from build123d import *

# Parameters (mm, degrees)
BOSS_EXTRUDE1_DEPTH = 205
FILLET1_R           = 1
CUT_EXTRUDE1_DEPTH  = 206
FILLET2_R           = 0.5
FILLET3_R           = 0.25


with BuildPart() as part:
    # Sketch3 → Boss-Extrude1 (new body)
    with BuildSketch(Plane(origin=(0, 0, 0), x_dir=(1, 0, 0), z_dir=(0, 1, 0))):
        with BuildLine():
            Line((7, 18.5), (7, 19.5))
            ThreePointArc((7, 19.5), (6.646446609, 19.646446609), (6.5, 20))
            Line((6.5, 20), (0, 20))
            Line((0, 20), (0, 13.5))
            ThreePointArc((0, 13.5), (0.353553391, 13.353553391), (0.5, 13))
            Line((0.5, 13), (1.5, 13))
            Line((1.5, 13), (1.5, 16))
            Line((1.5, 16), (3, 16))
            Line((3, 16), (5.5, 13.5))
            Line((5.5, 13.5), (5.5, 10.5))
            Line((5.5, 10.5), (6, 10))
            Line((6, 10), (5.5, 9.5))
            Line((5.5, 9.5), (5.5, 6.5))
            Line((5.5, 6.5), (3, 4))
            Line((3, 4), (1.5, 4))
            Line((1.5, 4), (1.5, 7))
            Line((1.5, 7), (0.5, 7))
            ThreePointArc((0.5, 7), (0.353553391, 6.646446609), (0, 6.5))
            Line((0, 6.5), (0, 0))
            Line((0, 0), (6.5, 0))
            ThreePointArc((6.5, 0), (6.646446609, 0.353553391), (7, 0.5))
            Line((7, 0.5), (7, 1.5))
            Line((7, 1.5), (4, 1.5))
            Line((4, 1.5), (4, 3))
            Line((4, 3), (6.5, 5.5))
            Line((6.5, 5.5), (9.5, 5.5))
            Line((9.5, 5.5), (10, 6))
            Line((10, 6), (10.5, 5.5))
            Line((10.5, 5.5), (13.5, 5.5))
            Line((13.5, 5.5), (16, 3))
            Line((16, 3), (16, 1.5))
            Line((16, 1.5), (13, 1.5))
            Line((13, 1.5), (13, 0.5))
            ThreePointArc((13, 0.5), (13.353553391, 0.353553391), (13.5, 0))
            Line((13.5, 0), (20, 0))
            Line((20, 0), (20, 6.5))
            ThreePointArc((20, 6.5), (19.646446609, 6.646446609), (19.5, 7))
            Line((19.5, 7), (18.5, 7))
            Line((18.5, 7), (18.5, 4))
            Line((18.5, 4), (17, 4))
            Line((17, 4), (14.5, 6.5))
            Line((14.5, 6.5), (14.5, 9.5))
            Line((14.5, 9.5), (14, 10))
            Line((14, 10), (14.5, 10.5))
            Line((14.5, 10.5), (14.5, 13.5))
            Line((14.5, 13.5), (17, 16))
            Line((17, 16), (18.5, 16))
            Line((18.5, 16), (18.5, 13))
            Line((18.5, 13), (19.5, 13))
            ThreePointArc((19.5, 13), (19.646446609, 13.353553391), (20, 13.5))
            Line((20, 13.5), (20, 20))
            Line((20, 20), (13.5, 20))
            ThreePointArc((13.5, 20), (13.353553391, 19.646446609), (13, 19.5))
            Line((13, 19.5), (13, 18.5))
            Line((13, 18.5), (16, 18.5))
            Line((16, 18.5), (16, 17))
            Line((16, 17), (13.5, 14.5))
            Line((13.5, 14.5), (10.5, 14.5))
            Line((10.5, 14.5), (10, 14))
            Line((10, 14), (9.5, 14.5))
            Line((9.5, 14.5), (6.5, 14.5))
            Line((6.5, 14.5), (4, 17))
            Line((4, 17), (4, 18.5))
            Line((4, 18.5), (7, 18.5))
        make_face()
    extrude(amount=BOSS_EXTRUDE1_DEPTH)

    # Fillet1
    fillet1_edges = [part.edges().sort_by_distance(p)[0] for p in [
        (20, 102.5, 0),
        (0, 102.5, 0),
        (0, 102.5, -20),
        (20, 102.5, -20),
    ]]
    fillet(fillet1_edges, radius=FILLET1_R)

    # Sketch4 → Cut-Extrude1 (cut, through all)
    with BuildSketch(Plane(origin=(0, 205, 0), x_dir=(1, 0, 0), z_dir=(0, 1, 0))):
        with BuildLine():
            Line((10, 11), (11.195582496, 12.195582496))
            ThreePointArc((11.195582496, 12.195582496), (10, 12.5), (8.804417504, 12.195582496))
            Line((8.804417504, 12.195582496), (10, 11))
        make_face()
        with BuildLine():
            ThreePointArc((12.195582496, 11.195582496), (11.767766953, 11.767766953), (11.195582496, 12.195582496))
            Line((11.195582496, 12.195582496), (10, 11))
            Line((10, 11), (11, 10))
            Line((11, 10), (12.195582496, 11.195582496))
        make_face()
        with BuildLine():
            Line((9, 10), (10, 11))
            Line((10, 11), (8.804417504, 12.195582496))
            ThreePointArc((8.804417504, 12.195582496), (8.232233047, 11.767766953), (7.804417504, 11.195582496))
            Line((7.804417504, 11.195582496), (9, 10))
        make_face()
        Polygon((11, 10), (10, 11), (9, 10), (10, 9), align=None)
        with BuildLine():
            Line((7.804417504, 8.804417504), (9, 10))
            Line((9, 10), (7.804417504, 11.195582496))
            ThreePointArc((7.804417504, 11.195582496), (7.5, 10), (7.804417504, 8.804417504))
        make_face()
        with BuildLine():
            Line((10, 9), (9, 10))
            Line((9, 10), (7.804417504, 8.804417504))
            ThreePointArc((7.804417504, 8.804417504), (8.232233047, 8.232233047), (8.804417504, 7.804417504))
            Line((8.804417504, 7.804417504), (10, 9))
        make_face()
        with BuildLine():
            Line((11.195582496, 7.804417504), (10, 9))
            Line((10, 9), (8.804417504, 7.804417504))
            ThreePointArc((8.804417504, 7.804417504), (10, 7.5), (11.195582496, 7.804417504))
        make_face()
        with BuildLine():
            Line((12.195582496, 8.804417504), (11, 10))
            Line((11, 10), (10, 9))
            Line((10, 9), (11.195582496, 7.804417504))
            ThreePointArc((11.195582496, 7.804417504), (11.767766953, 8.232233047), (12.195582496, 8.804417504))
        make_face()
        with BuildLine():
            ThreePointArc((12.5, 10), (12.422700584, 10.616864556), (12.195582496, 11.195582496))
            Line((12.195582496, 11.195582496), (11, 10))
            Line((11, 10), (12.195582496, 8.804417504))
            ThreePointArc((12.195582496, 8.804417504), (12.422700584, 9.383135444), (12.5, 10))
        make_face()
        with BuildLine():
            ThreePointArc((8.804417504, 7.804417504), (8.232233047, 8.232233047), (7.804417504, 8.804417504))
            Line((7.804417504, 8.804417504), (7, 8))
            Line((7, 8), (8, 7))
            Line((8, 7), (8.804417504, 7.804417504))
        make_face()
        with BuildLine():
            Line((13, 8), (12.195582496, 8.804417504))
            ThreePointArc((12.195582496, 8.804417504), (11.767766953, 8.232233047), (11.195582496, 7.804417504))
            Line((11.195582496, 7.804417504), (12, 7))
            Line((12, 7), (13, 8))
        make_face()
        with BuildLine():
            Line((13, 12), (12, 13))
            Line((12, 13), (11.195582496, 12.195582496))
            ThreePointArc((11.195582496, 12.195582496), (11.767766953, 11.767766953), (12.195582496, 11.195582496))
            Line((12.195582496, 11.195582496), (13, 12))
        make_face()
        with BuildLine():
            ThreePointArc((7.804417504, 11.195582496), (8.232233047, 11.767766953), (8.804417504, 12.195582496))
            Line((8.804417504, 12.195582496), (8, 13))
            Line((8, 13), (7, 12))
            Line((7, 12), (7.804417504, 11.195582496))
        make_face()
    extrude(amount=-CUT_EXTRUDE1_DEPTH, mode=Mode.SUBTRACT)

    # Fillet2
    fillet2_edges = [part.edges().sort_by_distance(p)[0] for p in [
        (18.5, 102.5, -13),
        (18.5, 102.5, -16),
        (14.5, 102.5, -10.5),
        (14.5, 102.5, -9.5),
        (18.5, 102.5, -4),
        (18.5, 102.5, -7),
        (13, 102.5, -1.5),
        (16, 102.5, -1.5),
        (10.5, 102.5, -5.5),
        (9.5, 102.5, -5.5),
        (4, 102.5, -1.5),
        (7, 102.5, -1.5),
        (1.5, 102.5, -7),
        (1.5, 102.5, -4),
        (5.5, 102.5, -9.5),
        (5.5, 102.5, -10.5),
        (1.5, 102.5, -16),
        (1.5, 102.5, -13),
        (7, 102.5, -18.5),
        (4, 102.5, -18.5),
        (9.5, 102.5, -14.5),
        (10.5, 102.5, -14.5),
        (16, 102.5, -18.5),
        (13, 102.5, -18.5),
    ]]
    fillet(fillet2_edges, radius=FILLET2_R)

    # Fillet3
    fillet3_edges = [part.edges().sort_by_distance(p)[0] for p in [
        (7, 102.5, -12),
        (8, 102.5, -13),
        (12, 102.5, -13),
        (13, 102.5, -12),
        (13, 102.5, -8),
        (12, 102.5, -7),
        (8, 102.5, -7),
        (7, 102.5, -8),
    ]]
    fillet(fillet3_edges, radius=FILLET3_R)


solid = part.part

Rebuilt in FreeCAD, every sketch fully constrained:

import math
import FreeCAD as App
import Part
import Sketcher
from FreeCAD import Vector


def edges_at(feature, points):
    """Names of the edges that pass closest to the given points."""
    edges = feature.Shape.Edges
    near = lambda p: min(range(len(edges)), key=lambda i: edges[i].distToShape(Part.Vertex(*p))[0])
    return sorted({f"Edge{near(p) + 1}" for p in points})

doc = App.newDocument("Part")
body = doc.addObject("PartDesign::Body", "Body")

sketch1 = body.newObject("Sketcher::SketchObject", "Sketch")
sketch1.AttachmentSupport = (doc.getObject("XZ_Plane"), [""])
sketch1.MapMode = "FlatFace"
sketch1.addGeometry(Part.LineSegment(Vector(7, -18.5, 0), Vector(7, -19.5, 0)), False)
sketch1.addGeometry(Part.ArcOfCircle(Part.Circle(Vector(7, -20, 0), Vector(0, 0, 1), 0.5), math.radians(90), math.radians(180)), False)
sketch1.addGeometry(Part.LineSegment(Vector(6.5, -20, 0), Vector(0, -20, 0)), False)
sketch1.addGeometry(Part.LineSegment(Vector(0, -20, 0), Vector(0, -13.5, 0)), False)
sketch1.addGeometry(Part.ArcOfCircle(Part.Circle(Vector(0, -13, 0), Vector(0, 0, 1), 0.5), math.radians(-90), math.radians(0)), False)
sketch1.addGeometry(Part.LineSegment(Vector(0.5, -13, 0), Vector(1.5, -13, 0)), False)
sketch1.addGeometry(Part.LineSegment(Vector(1.5, -13, 0), Vector(1.5, -16, 0)), False)
sketch1.addGeometry(Part.LineSegment(Vector(1.5, -16, 0), Vector(3, -16, 0)), False)
sketch1.addGeometry(Part.LineSegment(Vector(3, -16, 0), Vector(5.5, -13.5, 0)), False)
sketch1.addGeometry(Part.LineSegment(Vector(5.5, -13.5, 0), Vector(5.5, -10.5, 0)), False)
sketch1.addGeometry(Part.LineSegment(Vector(5.5, -10.5, 0), Vector(6, -10, 0)), False)
sketch1.addGeometry(Part.LineSegment(Vector(6, -10, 0), Vector(5.5, -9.5, 0)), False)
sketch1.addGeometry(Part.LineSegment(Vector(5.5, -9.5, 0), Vector(5.5, -6.5, 0)), False)
sketch1.addGeometry(Part.LineSegment(Vector(5.5, -6.5, 0), Vector(3, -4, 0)), False)
sketch1.addGeometry(Part.LineSegment(Vector(3, -4, 0), Vector(1.5, -4, 0)), False)
sketch1.addGeometry(Part.LineSegment(Vector(1.5, -4, 0), Vector(1.5, -7, 0)), False)
sketch1.addGeometry(Part.LineSegment(Vector(1.5, -7, 0), Vector(0.5, -7, 0)), False)
sketch1.addGeometry(Part.ArcOfCircle(Part.Circle(Vector(0, -7, 0), Vector(0, 0, 1), 0.5), math.radians(0), math.radians(90)), False)
sketch1.addGeometry(Part.LineSegment(Vector(0, -6.5, 0), Vector(0, 0, 0)), False)
sketch1.addGeometry(Part.LineSegment(Vector(0, 0, 0), Vector(6.5, 0, 0)), False)
sketch1.addGeometry(Part.ArcOfCircle(Part.Circle(Vector(7, 0, 0), Vector(0, 0, 1), 0.5), math.radians(180), math.radians(270)), False)
sketch1.addGeometry(Part.LineSegment(Vector(7, -0.5, 0), Vector(7, -1.5, 0)), False)
sketch1.addGeometry(Part.LineSegment(Vector(7, -1.5, 0), Vector(4, -1.5, 0)), False)
sketch1.addGeometry(Part.LineSegment(Vector(4, -1.5, 0), Vector(4, -3, 0)), False)
sketch1.addGeometry(Part.LineSegment(Vector(4, -3, 0), Vector(6.5, -5.5, 0)), False)
sketch1.addGeometry(Part.LineSegment(Vector(6.5, -5.5, 0), Vector(9.5, -5.5, 0)), False)
sketch1.addGeometry(Part.LineSegment(Vector(9.5, -5.5, 0), Vector(10, -6, 0)), False)
sketch1.addGeometry(Part.LineSegment(Vector(10, -6, 0), Vector(10.5, -5.5, 0)), False)
sketch1.addGeometry(Part.LineSegment(Vector(10.5, -5.5, 0), Vector(13.5, -5.5, 0)), False)
sketch1.addGeometry(Part.LineSegment(Vector(13.5, -5.5, 0), Vector(16, -3, 0)), False)
sketch1.addGeometry(Part.LineSegment(Vector(16, -3, 0), Vector(16, -1.5, 0)), False)
sketch1.addGeometry(Part.LineSegment(Vector(16, -1.5, 0), Vector(13, -1.5, 0)), False)
sketch1.addGeometry(Part.LineSegment(Vector(13, -1.5, 0), Vector(13, -0.5, 0)), False)
sketch1.addGeometry(Part.ArcOfCircle(Part.Circle(Vector(13, 0, 0), Vector(0, 0, 1), 0.5), math.radians(-90), math.radians(0)), False)
sketch1.addGeometry(Part.LineSegment(Vector(13.5, 0, 0), Vector(20, 0, 0)), False)
sketch1.addGeometry(Part.LineSegment(Vector(20, 0, 0), Vector(20, -6.5, 0)), False)
sketch1.addGeometry(Part.ArcOfCircle(Part.Circle(Vector(20, -7, 0), Vector(0, 0, 1), 0.5), math.radians(90), math.radians(180)), False)
sketch1.addGeometry(Part.LineSegment(Vector(19.5, -7, 0), Vector(18.5, -7, 0)), False)
sketch1.addGeometry(Part.LineSegment(Vector(18.5, -7, 0), Vector(18.5, -4, 0)), False)
sketch1.addGeometry(Part.LineSegment(Vector(18.5, -4, 0), Vector(17, -4, 0)), False)
sketch1.addGeometry(Part.LineSegment(Vector(17, -4, 0), Vector(14.5, -6.5, 0)), False)
sketch1.addGeometry(Part.LineSegment(Vector(14.5, -6.5, 0), Vector(14.5, -9.5, 0)), False)
sketch1.addGeometry(Part.LineSegment(Vector(14.5, -9.5, 0), Vector(14, -10, 0)), False)
sketch1.addGeometry(Part.LineSegment(Vector(14, -10, 0), Vector(14.5, -10.5, 0)), False)
sketch1.addGeometry(Part.LineSegment(Vector(14.5, -10.5, 0), Vector(14.5, -13.5, 0)), False)
sketch1.addGeometry(Part.LineSegment(Vector(14.5, -13.5, 0), Vector(17, -16, 0)), False)
sketch1.addGeometry(Part.LineSegment(Vector(17, -16, 0), Vector(18.5, -16, 0)), False)
sketch1.addGeometry(Part.LineSegment(Vector(18.5, -16, 0), Vector(18.5, -13, 0)), False)
sketch1.addGeometry(Part.LineSegment(Vector(18.5, -13, 0), Vector(19.5, -13, 0)), False)
sketch1.addGeometry(Part.ArcOfCircle(Part.Circle(Vector(20, -13, 0), Vector(0, 0, 1), 0.5), math.radians(180), math.radians(270)), False)
sketch1.addGeometry(Part.LineSegment(Vector(20, -13.5, 0), Vector(20, -20, 0)), False)
sketch1.addGeometry(Part.LineSegment(Vector(20, -20, 0), Vector(13.5, -20, 0)), False)
sketch1.addGeometry(Part.ArcOfCircle(Part.Circle(Vector(13, -20, 0), Vector(0, 0, 1), 0.5), math.radians(0), math.radians(90)), False)
sketch1.addGeometry(Part.LineSegment(Vector(13, -19.5, 0), Vector(13, -18.5, 0)), False)
sketch1.addGeometry(Part.LineSegment(Vector(13, -18.5, 0), Vector(16, -18.5, 0)), False)
sketch1.addGeometry(Part.LineSegment(Vector(16, -18.5, 0), Vector(16, -17, 0)), False)
sketch1.addGeometry(Part.LineSegment(Vector(16, -17, 0), Vector(13.5, -14.5, 0)), False)
sketch1.addGeometry(Part.LineSegment(Vector(13.5, -14.5, 0), Vector(10.5, -14.5, 0)), False)
sketch1.addGeometry(Part.LineSegment(Vector(10.5, -14.5, 0), Vector(10, -14, 0)), False)
sketch1.addGeometry(Part.LineSegment(Vector(10, -14, 0), Vector(9.5, -14.5, 0)), False)
sketch1.addGeometry(Part.LineSegment(Vector(9.5, -14.5, 0), Vector(6.5, -14.5, 0)), False)
sketch1.addGeometry(Part.LineSegment(Vector(6.5, -14.5, 0), Vector(4, -17, 0)), False)
sketch1.addGeometry(Part.LineSegment(Vector(4, -17, 0), Vector(4, -18.5, 0)), False)
sketch1.addGeometry(Part.LineSegment(Vector(4, -18.5, 0), Vector(7, -18.5, 0)), False)
sketch1.addConstraint(Sketcher.Constraint("Coincident", 0, 2, 1, 1))
sketch1.addConstraint(Sketcher.Constraint("Coincident", 1, 2, 2, 1))
sketch1.addConstraint(Sketcher.Constraint("Coincident", 2, 2, 3, 1))
sketch1.addConstraint(Sketcher.Constraint("Coincident", 3, 2, 4, 1))
sketch1.addConstraint(Sketcher.Constraint("Coincident", 4, 2, 5, 1))
sketch1.addConstraint(Sketcher.Constraint("Coincident", 5, 2, 6, 1))
sketch1.addConstraint(Sketcher.Constraint("Coincident", 6, 2, 7, 1))
sketch1.addConstraint(Sketcher.Constraint("Coincident", 7, 2, 8, 1))
sketch1.addConstraint(Sketcher.Constraint("Coincident", 8, 2, 9, 1))
sketch1.addConstraint(Sketcher.Constraint("Coincident", 9, 2, 10, 1))
sketch1.addConstraint(Sketcher.Constraint("Coincident", 10, 2, 11, 1))
sketch1.addConstraint(Sketcher.Constraint("Coincident", 11, 2, 12, 1))
sketch1.addConstraint(Sketcher.Constraint("Coincident", 12, 2, 13, 1))
sketch1.addConstraint(Sketcher.Constraint("Coincident", 13, 2, 14, 1))
sketch1.addConstraint(Sketcher.Constraint("Coincident", 14, 2, 15, 1))
sketch1.addConstraint(Sketcher.Constraint("Coincident", 15, 2, 16, 1))
sketch1.addConstraint(Sketcher.Constraint("Coincident", 16, 2, 17, 1))
sketch1.addConstraint(Sketcher.Constraint("Coincident", 17, 2, 18, 1))
sketch1.addConstraint(Sketcher.Constraint("Coincident", 18, 2, 19, 1))
sketch1.addConstraint(Sketcher.Constraint("Coincident", 19, 2, 20, 1))
sketch1.addConstraint(Sketcher.Constraint("Coincident", 20, 2, 21, 1))
sketch1.addConstraint(Sketcher.Constraint("Coincident", 21, 2, 22, 1))
sketch1.addConstraint(Sketcher.Constraint("Coincident", 22, 2, 23, 1))
sketch1.addConstraint(Sketcher.Constraint("Coincident", 23, 2, 24, 1))
sketch1.addConstraint(Sketcher.Constraint("Coincident", 24, 2, 25, 1))
sketch1.addConstraint(Sketcher.Constraint("Coincident", 25, 2, 26, 1))
sketch1.addConstraint(Sketcher.Constraint("Coincident", 26, 2, 27, 1))
sketch1.addConstraint(Sketcher.Constraint("Coincident", 27, 2, 28, 1))
sketch1.addConstraint(Sketcher.Constraint("Coincident", 28, 2, 29, 1))
sketch1.addConstraint(Sketcher.Constraint("Coincident", 29, 2, 30, 1))
sketch1.addConstraint(Sketcher.Constraint("Coincident", 30, 2, 31, 1))
sketch1.addConstraint(Sketcher.Constraint("Coincident", 31, 2, 32, 1))
sketch1.addConstraint(Sketcher.Constraint("Coincident", 32, 2, 33, 1))
sketch1.addConstraint(Sketcher.Constraint("Coincident", 33, 2, 34, 1))
sketch1.addConstraint(Sketcher.Constraint("Coincident", 34, 2, 35, 1))
sketch1.addConstraint(Sketcher.Constraint("Coincident", 35, 2, 36, 1))
sketch1.addConstraint(Sketcher.Constraint("Coincident", 36, 2, 37, 1))
sketch1.addConstraint(Sketcher.Constraint("Coincident", 37, 2, 38, 1))
sketch1.addConstraint(Sketcher.Constraint("Coincident", 38, 2, 39, 1))
sketch1.addConstraint(Sketcher.Constraint("Coincident", 39, 2, 40, 1))
sketch1.addConstraint(Sketcher.Constraint("Coincident", 40, 2, 41, 1))
sketch1.addConstraint(Sketcher.Constraint("Coincident", 41, 2, 42, 1))
sketch1.addConstraint(Sketcher.Constraint("Coincident", 42, 2, 43, 1))
sketch1.addConstraint(Sketcher.Constraint("Coincident", 43, 2, 44, 1))
sketch1.addConstraint(Sketcher.Constraint("Coincident", 44, 2, 45, 1))
sketch1.addConstraint(Sketcher.Constraint("Coincident", 45, 2, 46, 1))
sketch1.addConstraint(Sketcher.Constraint("Coincident", 46, 2, 47, 1))
sketch1.addConstraint(Sketcher.Constraint("Coincident", 47, 2, 48, 1))
sketch1.addConstraint(Sketcher.Constraint("Coincident", 48, 2, 49, 1))
sketch1.addConstraint(Sketcher.Constraint("Coincident", 49, 2, 50, 1))
sketch1.addConstraint(Sketcher.Constraint("Coincident", 50, 2, 51, 1))
sketch1.addConstraint(Sketcher.Constraint("Coincident", 51, 2, 52, 1))
sketch1.addConstraint(Sketcher.Constraint("Coincident", 52, 2, 53, 1))
sketch1.addConstraint(Sketcher.Constraint("Coincident", 53, 2, 54, 1))
sketch1.addConstraint(Sketcher.Constraint("Coincident", 54, 2, 55, 1))
sketch1.addConstraint(Sketcher.Constraint("Coincident", 55, 2, 56, 1))
sketch1.addConstraint(Sketcher.Constraint("Coincident", 56, 2, 57, 1))
sketch1.addConstraint(Sketcher.Constraint("Coincident", 57, 2, 58, 1))
sketch1.addConstraint(Sketcher.Constraint("Coincident", 58, 2, 59, 1))
sketch1.addConstraint(Sketcher.Constraint("Coincident", 59, 2, 60, 1))
sketch1.addConstraint(Sketcher.Constraint("Coincident", 60, 2, 61, 1))
sketch1.addConstraint(Sketcher.Constraint("Coincident", 61, 2, 62, 1))
sketch1.addConstraint(Sketcher.Constraint("Coincident", 62, 2, 63, 1))
sketch1.addConstraint(Sketcher.Constraint("Coincident", 63, 2, 0, 1))
sketch1.addConstraint(Sketcher.Constraint("Vertical", 0))
sketch1.addConstraint(Sketcher.Constraint("Horizontal", 2))
sketch1.addConstraint(Sketcher.Constraint("Vertical", 3))
sketch1.addConstraint(Sketcher.Constraint("Horizontal", 5))
sketch1.addConstraint(Sketcher.Constraint("Vertical", 6))
sketch1.addConstraint(Sketcher.Constraint("Horizontal", 7))
sketch1.addConstraint(Sketcher.Constraint("Vertical", 9))
sketch1.addConstraint(Sketcher.Constraint("Vertical", 12))
sketch1.addConstraint(Sketcher.Constraint("Horizontal", 14))
sketch1.addConstraint(Sketcher.Constraint("Vertical", 15))
sketch1.addConstraint(Sketcher.Constraint("Horizontal", 16))
sketch1.addConstraint(Sketcher.Constraint("Vertical", 18))
sketch1.addConstraint(Sketcher.Constraint("Horizontal", 19))
sketch1.addConstraint(Sketcher.Constraint("Vertical", 21))
sketch1.addConstraint(Sketcher.Constraint("Horizontal", 22))
sketch1.addConstraint(Sketcher.Constraint("Vertical", 23))
sketch1.addConstraint(Sketcher.Constraint("Horizontal", 25))
sketch1.addConstraint(Sketcher.Constraint("Horizontal", 28))
sketch1.addConstraint(Sketcher.Constraint("Vertical", 30))
sketch1.addConstraint(Sketcher.Constraint("Horizontal", 31))
sketch1.addConstraint(Sketcher.Constraint("Vertical", 32))
sketch1.addConstraint(Sketcher.Constraint("Horizontal", 34))
sketch1.addConstraint(Sketcher.Constraint("Vertical", 35))
sketch1.addConstraint(Sketcher.Constraint("Horizontal", 37))
sketch1.addConstraint(Sketcher.Constraint("Vertical", 38))
sketch1.addConstraint(Sketcher.Constraint("Horizontal", 39))
sketch1.addConstraint(Sketcher.Constraint("Vertical", 41))
sketch1.addConstraint(Sketcher.Constraint("Vertical", 44))
sketch1.addConstraint(Sketcher.Constraint("Horizontal", 46))
sketch1.addConstraint(Sketcher.Constraint("Vertical", 47))
sketch1.addConstraint(Sketcher.Constraint("Horizontal", 48))
sketch1.addConstraint(Sketcher.Constraint("Vertical", 50))
sketch1.addConstraint(Sketcher.Constraint("Horizontal", 51))
sketch1.addConstraint(Sketcher.Constraint("Vertical", 53))
sketch1.addConstraint(Sketcher.Constraint("Horizontal", 54))
sketch1.addConstraint(Sketcher.Constraint("Vertical", 55))
sketch1.addConstraint(Sketcher.Constraint("Horizontal", 57))
sketch1.addConstraint(Sketcher.Constraint("Horizontal", 60))
sketch1.addConstraint(Sketcher.Constraint("Vertical", 62))
sketch1.addConstraint(Sketcher.Constraint("Horizontal", 63))
sketch1.addConstraint(Sketcher.Constraint("Coincident", 18, 2, -1, 1))
sketch1.addConstraint(Sketcher.Constraint("Equal", 1, 4))
sketch1.addConstraint(Sketcher.Constraint("Equal", 4, 17))
sketch1.addConstraint(Sketcher.Constraint("Equal", 17, 20))
sketch1.addConstraint(Sketcher.Constraint("Equal", 20, 33))
sketch1.addConstraint(Sketcher.Constraint("Equal", 33, 36))
sketch1.addConstraint(Sketcher.Constraint("Equal", 36, 49))
sketch1.addConstraint(Sketcher.Constraint("Equal", 49, 52))
sketch1.addConstraint(Sketcher.Constraint("PointOnObject", 4, 3, -2))
sketch1.addConstraint(Sketcher.Constraint("PointOnObject", 17, 3, -2))
sketch1.addConstraint(Sketcher.Constraint("PointOnObject", 20, 3, -1))
sketch1.addConstraint(Sketcher.Constraint("PointOnObject", 33, 3, -1))
sketch1.addConstraint(Sketcher.Constraint("PointOnObject", 2, 2, -2))
sketch1.addConstraint(Sketcher.Constraint("PointOnObject", 33, 2, -1))
sketch1.addConstraint(Sketcher.Constraint("Parallel", 8, 10))
sketch1.addConstraint(Sketcher.Constraint("Perpendicular", 10, 11))
sketch1.addConstraint(Sketcher.Constraint("Parallel", 11, 13))
sketch1.addConstraint(Sketcher.Constraint("Parallel", 13, 24))
sketch1.addConstraint(Sketcher.Constraint("Parallel", 24, 26))
sketch1.addConstraint(Sketcher.Constraint("Perpendicular", 26, 27))
sketch1.addConstraint(Sketcher.Constraint("Parallel", 27, 29))
sketch1.addConstraint(Sketcher.Constraint("Parallel", 29, 40))
sketch1.addConstraint(Sketcher.Constraint("Parallel", 40, 42))
sketch1.addConstraint(Sketcher.Constraint("Perpendicular", 42, 43))
sketch1.addConstraint(Sketcher.Constraint("Parallel", 43, 45))
sketch1.addConstraint(Sketcher.Constraint("Parallel", 45, 56))
sketch1.addConstraint(Sketcher.Constraint("Parallel", 56, 58))
sketch1.addConstraint(Sketcher.Constraint("Perpendicular", 58, 59))
sketch1.addConstraint(Sketcher.Constraint("Parallel", 59, 61))
sketch1.addConstraint(Sketcher.Constraint("Horizontal", 17, 3, 36, 3))
sketch1.addConstraint(Sketcher.Constraint("Horizontal", 4, 3, 49, 3))
sketch1.addConstraint(Sketcher.Constraint("Horizontal", 1, 3, 52, 3))
sketch1.addConstraint(Sketcher.Constraint("Horizontal", 52, 3, 1, 2))
sketch1.addConstraint(Sketcher.Constraint("Horizontal", 49, 3, 4, 2))
sketch1.addConstraint(Sketcher.Constraint("Horizontal", 3, 2, 8, 2))
sketch1.addConstraint(Sketcher.Constraint("Horizontal", 36, 3, 15, 2))
sketch1.addConstraint(Sketcher.Constraint("Horizontal", 12, 2, 17, 2))
sketch1.addConstraint(Sketcher.Constraint("Horizontal", 25, 2, 27, 2))
sketch1.addConstraint(Sketcher.Constraint("Horizontal", 23, 2, 29, 2))
sketch1.addConstraint(Sketcher.Constraint("Horizontal", 22, 2, 30, 2))
sketch1.addConstraint(Sketcher.Constraint("Horizontal", 16, 2, 36, 2))
sketch1.addConstraint(Sketcher.Constraint("Horizontal", 14, 2, 38, 2))
sketch1.addConstraint(Sketcher.Constraint("Horizontal", 35, 2, 40, 2))
sketch1.addConstraint(Sketcher.Constraint("Horizontal", 11, 2, 41, 2))
sketch1.addConstraint(Sketcher.Constraint("Horizontal", 10, 2, 42, 2))
sketch1.addConstraint(Sketcher.Constraint("Horizontal", 9, 2, 43, 2))
sketch1.addConstraint(Sketcher.Constraint("Horizontal", 8, 2, 44, 2))
sketch1.addConstraint(Sketcher.Constraint("Horizontal", 7, 2, 45, 2))
sketch1.addConstraint(Sketcher.Constraint("Horizontal", 5, 2, 47, 2))
sketch1.addConstraint(Sketcher.Constraint("Horizontal", 2, 2, 50, 2))
sketch1.addConstraint(Sketcher.Constraint("Horizontal", 57, 2, 59, 2))
sketch1.addConstraint(Sketcher.Constraint("Horizontal", 55, 2, 61, 2))
sketch1.addConstraint(Sketcher.Constraint("Horizontal", 54, 2, 62, 2))
sketch1.addConstraint(Sketcher.Constraint("Vertical", 1, 3, 20, 3))
sketch1.addConstraint(Sketcher.Constraint("Vertical", 36, 3, 49, 3))
sketch1.addConstraint(Sketcher.Constraint("Vertical", 33, 3, 52, 3))
sketch1.addConstraint(Sketcher.Constraint("Vertical", 20, 3, 0, 2))
sketch1.addConstraint(Sketcher.Constraint("Vertical", 9, 2, 11, 2))
sketch1.addConstraint(Sketcher.Constraint("Vertical", 7, 2, 13, 2))
sketch1.addConstraint(Sketcher.Constraint("Vertical", 6, 2, 14, 2))
sketch1.addConstraint(Sketcher.Constraint("Vertical", 0, 2, 20, 2))
sketch1.addConstraint(Sketcher.Constraint("Vertical", 19, 2, 24, 2))
sketch1.addConstraint(Sketcher.Constraint("Vertical", 52, 3, 31, 2))
sketch1.addConstraint(Sketcher.Constraint("Vertical", 28, 2, 33, 2))
sketch1.addConstraint(Sketcher.Constraint("Vertical", 49, 3, 34, 2))
sketch1.addConstraint(Sketcher.Constraint("Vertical", 41, 2, 43, 2))
sketch1.addConstraint(Sketcher.Constraint("Vertical", 38, 2, 46, 2))
sketch1.addConstraint(Sketcher.Constraint("Vertical", 35, 2, 49, 2))
sketch1.addConstraint(Sketcher.Constraint("Vertical", 32, 2, 52, 2))
sketch1.addConstraint(Sketcher.Constraint("Vertical", 30, 2, 54, 2))
sketch1.addConstraint(Sketcher.Constraint("Vertical", 51, 2, 56, 2))
sketch1.addConstraint(Sketcher.Constraint("Vertical", 27, 2, 57, 2))
sketch1.addConstraint(Sketcher.Constraint("Vertical", 26, 2, 58, 2))
sketch1.addConstraint(Sketcher.Constraint("Vertical", 24, 2, 60, 2))
sketch1.addConstraint(Sketcher.Constraint("Equal", 22, 25))
sketch1.addConstraint(Sketcher.Constraint("Equal", 25, 28))
sketch1.addConstraint(Sketcher.Constraint("Equal", 19, 34))
sketch1.addConstraint(Sketcher.Constraint("Equal", 16, 37))
sketch1.addConstraint(Sketcher.Constraint("Equal", 14, 39))
sketch1.addConstraint(Sketcher.Constraint("Equal", 48, 0))
sketch1.addConstraint(Sketcher.Constraint("Equal", 51, 3))
sketch1.addConstraint(Sketcher.Constraint("Equal", 63, 6))
sketch1.addConstraint(Sketcher.Constraint("Equal", 6, 9))
sketch1.addConstraint(Sketcher.Constraint("Equal", 9, 12))
sketch1.addConstraint(Sketcher.Constraint("Equal", 3, 18))
sketch1.addConstraint(Sketcher.Constraint("Equal", 0, 21))
sketch1.addConstraint(Sketcher.Constraint("Equal", 46, 23))
sketch1.addConstraint(Sketcher.Constraint("Equal", 30, 55))
sketch1.addConstraint(Sketcher.Constraint("Equal", 11, 26))
sketch1.addConstraint(Sketcher.Constraint("Radius", 1, 0.5))
sketch1.addConstraint(Sketcher.Constraint("DistanceX", 5, 1, 5, 2, 1.0))
sketch1.addConstraint(Sketcher.Constraint("DistanceX", 22, 2, 22, 1, 3.0))
sketch1.addConstraint(Sketcher.Constraint("DistanceX", 2, 2, 2, 1, 6.5))
sketch1.addConstraint(Sketcher.Constraint("DistanceX", 7, 1, 7, 2, 1.5))
sketch1.addConstraint(Sketcher.Constraint("DistanceY", 1, 3, -1, 1, 20.0))
pad1 = body.newObject("PartDesign::Pad", "Pad")
pad1.Profile = sketch1
pad1.Length = 205
pad1.Reversed = True
doc.recompute()

fillet = body.newObject("PartDesign::Fillet", "Fillet")
fillet.Base = (pad1, edges_at(pad1, [
    (20, 102.5, 0),
    (0, 102.5, 0),
    (0, 102.5, -20),
    (20, 102.5, -20),
]))
fillet.Radius = 1

sketch2 = body.newObject("Sketcher::SketchObject", "Sketch001")
sketch2.AttachmentSupport = (doc.getObject("XZ_Plane"), [""])
sketch2.MapMode = "FlatFace"
sketch2.AttachmentOffset = App.Placement(Vector(0, 0, -205), App.Rotation())
sketch2.addGeometry(Part.ArcOfCircle(Part.Circle(Vector(10, -10, 0), Vector(0, 0, 1), 2.5), math.radians(-119), math.radians(-61)), False)
sketch2.addGeometry(Part.LineSegment(Vector(8.8, -12.2, 0), Vector(8, -13, 0)), False)
sketch2.addGeometry(Part.LineSegment(Vector(8, -13, 0), Vector(7, -12, 0)), False)
sketch2.addGeometry(Part.LineSegment(Vector(7, -12, 0), Vector(7.8, -11.2, 0)), False)
sketch2.addGeometry(Part.ArcOfCircle(Part.Circle(Vector(10, -10, 0), Vector(0, 0, 1), 2.5), math.radians(151), math.radians(209)), False)
sketch2.addGeometry(Part.LineSegment(Vector(7.8, -8.8, 0), Vector(7, -8, 0)), False)
sketch2.addGeometry(Part.LineSegment(Vector(7, -8, 0), Vector(8, -7, 0)), False)
sketch2.addGeometry(Part.LineSegment(Vector(8, -7, 0), Vector(8.8, -7.8, 0)), False)
sketch2.addGeometry(Part.ArcOfCircle(Part.Circle(Vector(10, -10, 0), Vector(0, 0, 1), 2.5), math.radians(61), math.radians(119)), False)
sketch2.addGeometry(Part.LineSegment(Vector(11.2, -7.8, 0), Vector(12, -7, 0)), False)
sketch2.addGeometry(Part.LineSegment(Vector(12, -7, 0), Vector(13, -8, 0)), False)
sketch2.addGeometry(Part.LineSegment(Vector(13, -8, 0), Vector(12.2, -8.8, 0)), False)
sketch2.addGeometry(Part.ArcOfCircle(Part.Circle(Vector(10, -10, 0), Vector(0, 0, 1), 2.5), math.radians(0), math.radians(29)), False)
sketch2.addGeometry(Part.ArcOfCircle(Part.Circle(Vector(10, -10, 0), Vector(0, 0, 1), 2.5), math.radians(-29), math.radians(0)), False)
sketch2.addGeometry(Part.LineSegment(Vector(12.2, -11.2, 0), Vector(13, -12, 0)), False)
sketch2.addGeometry(Part.LineSegment(Vector(13, -12, 0), Vector(12, -13, 0)), False)
sketch2.addGeometry(Part.LineSegment(Vector(12, -13, 0), Vector(11.2, -12.2, 0)), False)
sketch2.addConstraint(Sketcher.Constraint("Coincident", 0, 1, 1, 1))
sketch2.addConstraint(Sketcher.Constraint("Coincident", 1, 2, 2, 1))
sketch2.addConstraint(Sketcher.Constraint("Coincident", 2, 2, 3, 1))
sketch2.addConstraint(Sketcher.Constraint("Coincident", 3, 2, 4, 2))
sketch2.addConstraint(Sketcher.Constraint("Coincident", 4, 1, 5, 1))
sketch2.addConstraint(Sketcher.Constraint("Coincident", 5, 2, 6, 1))
sketch2.addConstraint(Sketcher.Constraint("Coincident", 6, 2, 7, 1))
sketch2.addConstraint(Sketcher.Constraint("Coincident", 7, 2, 8, 2))
sketch2.addConstraint(Sketcher.Constraint("Coincident", 8, 1, 9, 1))
sketch2.addConstraint(Sketcher.Constraint("Coincident", 9, 2, 10, 1))
sketch2.addConstraint(Sketcher.Constraint("Coincident", 10, 2, 11, 1))
sketch2.addConstraint(Sketcher.Constraint("Coincident", 11, 2, 12, 2))
sketch2.addConstraint(Sketcher.Constraint("Tangent", 12, 1, 13, 2))
sketch2.addConstraint(Sketcher.Constraint("Coincident", 13, 1, 14, 1))
sketch2.addConstraint(Sketcher.Constraint("Coincident", 14, 2, 15, 1))
sketch2.addConstraint(Sketcher.Constraint("Coincident", 15, 2, 16, 1))
sketch2.addConstraint(Sketcher.Constraint("Coincident", 16, 2, 0, 2))
sketch2.addConstraint(Sketcher.Constraint("Coincident", 4, 3, 0, 3))
sketch2.addConstraint(Sketcher.Constraint("Coincident", 8, 3, 0, 3))
sketch2.addConstraint(Sketcher.Constraint("Coincident", 12, 3, 0, 3))
sketch2.addConstraint(Sketcher.Constraint("Equal", 0, 4))
sketch2.addConstraint(Sketcher.Constraint("Equal", 4, 8))
sketch2.addConstraint(Sketcher.Constraint("Equal", 8, 12))
sketch2.addConstraint(Sketcher.Constraint("Equal", 12, 13))
sketch2.addConstraint(Sketcher.Constraint("Perpendicular", 1, 2))
sketch2.addConstraint(Sketcher.Constraint("Perpendicular", 2, 3))
sketch2.addConstraint(Sketcher.Constraint("Perpendicular", 3, 5))
sketch2.addConstraint(Sketcher.Constraint("Perpendicular", 5, 6))
sketch2.addConstraint(Sketcher.Constraint("Perpendicular", 6, 7))
sketch2.addConstraint(Sketcher.Constraint("Perpendicular", 7, 9))
sketch2.addConstraint(Sketcher.Constraint("Perpendicular", 9, 10))
sketch2.addConstraint(Sketcher.Constraint("Perpendicular", 10, 11))
sketch2.addConstraint(Sketcher.Constraint("Perpendicular", 11, 14))
sketch2.addConstraint(Sketcher.Constraint("Perpendicular", 14, 15))
sketch2.addConstraint(Sketcher.Constraint("Perpendicular", 15, 16))
sketch2.addConstraint(Sketcher.Constraint("Horizontal", 7, 2, 8, 1))
sketch2.addConstraint(Sketcher.Constraint("Horizontal", 6, 2, 9, 2))
sketch2.addConstraint(Sketcher.Constraint("Horizontal", 5, 2, 10, 2))
sketch2.addConstraint(Sketcher.Constraint("Horizontal", 4, 1, 11, 2))
sketch2.addConstraint(Sketcher.Constraint("Horizontal", 13, 3, 12, 1))
sketch2.addConstraint(Sketcher.Constraint("Horizontal", 3, 2, 13, 1))
sketch2.addConstraint(Sketcher.Constraint("Horizontal", 2, 2, 14, 2))
sketch2.addConstraint(Sketcher.Constraint("Horizontal", 1, 2, 15, 2))
sketch2.addConstraint(Sketcher.Constraint("Vertical", 3, 2, 4, 1))
sketch2.addConstraint(Sketcher.Constraint("Vertical", 2, 2, 5, 2))
sketch2.addConstraint(Sketcher.Constraint("Vertical", 1, 2, 6, 2))
sketch2.addConstraint(Sketcher.Constraint("Equal", 1, 3))
sketch2.addConstraint(Sketcher.Constraint("Radius", 0, 2.5))
sketch2.addConstraint(Sketcher.Constraint("DistanceX", -1, 1, 0, 3, 10.0))
sketch2.addConstraint(Sketcher.Constraint("DistanceY", 0, 3, -1, 1, 10.0))
sketch2.addConstraint(Sketcher.Constraint("DistanceX", -1, 1, 1, 2, 8.0))
sketch2.addConstraint(Sketcher.Constraint("DistanceY", 1, 2, -1, 1, 13.0))
pocket1 = body.newObject("PartDesign::Pocket", "Pocket")
pocket1.Profile = sketch2
pocket1.Type = "ThroughAll"
pocket1.Reversed = True
doc.recompute()

fillet2 = body.newObject("PartDesign::Fillet", "Fillet001")
fillet2.Base = (pocket1, edges_at(pocket1, [
    (18.5, 102.5, -13),
    (18.5, 102.5, -16),
    (14.5, 102.5, -10.5),
    (14.5, 102.5, -9.5),
    (18.5, 102.5, -4),
    (18.5, 102.5, -7),
    (13, 102.5, -1.5),
    (16, 102.5, -1.5),
    (10.5, 102.5, -5.5),
    (9.5, 102.5, -5.5),
    (4, 102.5, -1.5),
    (7, 102.5, -1.5),
    (1.5, 102.5, -7),
    (1.5, 102.5, -4),
    (5.5, 102.5, -9.5),
    (5.5, 102.5, -10.5),
    (1.5, 102.5, -16),
    (1.5, 102.5, -13),
    (7, 102.5, -18.5),
    (4, 102.5, -18.5),
    (9.5, 102.5, -14.5),
    (10.5, 102.5, -14.5),
    (16, 102.5, -18.5),
    (13, 102.5, -18.5),
]))
fillet2.Radius = 0.5
doc.recompute()

fillet3 = body.newObject("PartDesign::Fillet", "Fillet002")
fillet3.Base = (fillet2, edges_at(fillet2, [
    (7, 102.5, -12),
    (8, 102.5, -13),
    (12, 102.5, -13),
    (13, 102.5, -12),
    (13, 102.5, -8),
    (12, 102.5, -7),
    (8, 102.5, -7),
    (7, 102.5, -8),
]))
fillet3.Radius = 0.25

doc.recompute()
